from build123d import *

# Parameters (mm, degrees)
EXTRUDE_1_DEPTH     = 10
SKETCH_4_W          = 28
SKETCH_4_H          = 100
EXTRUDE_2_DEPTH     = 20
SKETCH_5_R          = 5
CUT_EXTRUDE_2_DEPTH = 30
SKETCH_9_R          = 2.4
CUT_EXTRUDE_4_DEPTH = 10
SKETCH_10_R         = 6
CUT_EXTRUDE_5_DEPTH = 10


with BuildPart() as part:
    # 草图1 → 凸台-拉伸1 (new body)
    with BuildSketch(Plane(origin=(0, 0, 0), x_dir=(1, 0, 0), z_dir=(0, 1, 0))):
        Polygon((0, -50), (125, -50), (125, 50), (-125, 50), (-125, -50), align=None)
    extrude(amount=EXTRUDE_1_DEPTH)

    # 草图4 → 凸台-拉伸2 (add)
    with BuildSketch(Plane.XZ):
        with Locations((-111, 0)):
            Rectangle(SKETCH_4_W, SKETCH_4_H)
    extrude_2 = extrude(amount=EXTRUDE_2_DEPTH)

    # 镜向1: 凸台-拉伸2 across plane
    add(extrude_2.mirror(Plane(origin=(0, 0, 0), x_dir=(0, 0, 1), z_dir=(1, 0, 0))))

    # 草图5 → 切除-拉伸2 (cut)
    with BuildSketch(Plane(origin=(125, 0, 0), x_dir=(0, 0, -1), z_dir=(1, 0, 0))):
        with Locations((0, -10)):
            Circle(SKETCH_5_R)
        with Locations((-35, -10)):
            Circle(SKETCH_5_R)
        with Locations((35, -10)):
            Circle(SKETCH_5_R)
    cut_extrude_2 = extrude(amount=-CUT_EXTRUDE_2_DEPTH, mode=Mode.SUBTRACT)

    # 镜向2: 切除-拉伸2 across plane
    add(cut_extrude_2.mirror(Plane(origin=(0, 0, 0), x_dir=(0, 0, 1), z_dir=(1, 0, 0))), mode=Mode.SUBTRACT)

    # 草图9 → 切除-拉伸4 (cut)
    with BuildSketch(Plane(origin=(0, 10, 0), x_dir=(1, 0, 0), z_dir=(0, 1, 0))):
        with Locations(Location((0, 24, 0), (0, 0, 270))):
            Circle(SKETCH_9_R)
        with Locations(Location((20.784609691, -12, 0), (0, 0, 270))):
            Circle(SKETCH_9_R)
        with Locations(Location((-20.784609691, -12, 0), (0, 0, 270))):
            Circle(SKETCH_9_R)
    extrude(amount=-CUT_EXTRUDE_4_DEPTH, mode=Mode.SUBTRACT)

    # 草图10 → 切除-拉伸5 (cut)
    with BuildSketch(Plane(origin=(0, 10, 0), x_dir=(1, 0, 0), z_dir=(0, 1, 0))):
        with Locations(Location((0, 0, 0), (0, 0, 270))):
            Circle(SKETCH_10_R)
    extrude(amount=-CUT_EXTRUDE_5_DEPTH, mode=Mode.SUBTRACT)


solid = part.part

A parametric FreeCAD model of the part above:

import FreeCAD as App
import Part
import Sketcher

doc = App.newDocument("Part")
body = doc.addObject("PartDesign::Body", "Body")

# Sketch on XZ plane
sketch1 = body.newObject("Sketcher::SketchObject", "Sketch")
sketch1.AttachmentSupport = (doc.getObject("XZ_Plane"), [""])
sketch1.MapMode = "FlatFace"
sketch1.addGeometry([
    Part.LineSegment(App.Vector(125, 50, 0), App.Vector(125, -50, 0)),
    Part.LineSegment(App.Vector(125, -50, 0), App.Vector(-125, -50, 0)),
    Part.LineSegment(App.Vector(-125, -50, 0), App.Vector(-125, 50, 0)),
    Part.LineSegment(App.Vector(-125, 50, 0), App.Vector(125, 50, 0)),
], False)
sketch1.addConstraint([
    Sketcher.Constraint("Coincident", 0, 2, 1, 1),
    Sketcher.Constraint("Coincident", 1, 2, 2, 1),
    Sketcher.Constraint("Coincident", 2, 2, 3, 1),
    Sketcher.Constraint("Coincident", 3, 2, 0, 1),
    Sketcher.Constraint("Vertical", 0),
    Sketcher.Constraint("Horizontal", 1),
    Sketcher.Constraint("Vertical", 2),
    Sketcher.Constraint("Horizontal", 3),
    Sketcher.Constraint("Symmetric", 0, 2, 2, 2, -1, 1),
    Sketcher.Constraint("DistanceX", 1, 2, 1, 1, 250.0),
    Sketcher.Constraint("DistanceY", 0, 2, 0, 1, 100.0),
])
pad1 = body.newObject("PartDesign::Pad", "Pad")
pad1.Profile = sketch1
pad1.Length = 10
pad1.Reversed = True

# Sketch on XZ plane
sketch2 = body.newObject("Sketcher::SketchObject", "Sketch001")
sketch2.AttachmentSupport = (doc.getObject("XZ_Plane"), [""])
sketch2.MapMode = "FlatFace"
sketch2.addGeometry([
    Part.LineSegment(App.Vector(-125, 50, 0), App.Vector(-125, -50, 0)),
    Part.LineSegment(App.Vector(-125, -50, 0), App.Vector(-97, -50, 0)),
    Part.LineSegment(App.Vector(-97, -50, 0), App.Vector(-97, 50, 0)),
    Part.LineSegment(App.Vector(-97, 50, 0), App.Vector(-125, 50, 0)),
], False)
sketch2.addConstraint([
    Sketcher.Constraint("Coincident", 0, 2, 1, 1),
    Sketcher.Constraint("Coincident", 1, 2, 2, 1),
    Sketcher.Constraint("Coincident", 2, 2, 3, 1),
    Sketcher.Constraint("Coincident", 3, 2, 0, 1),
    Sketcher.Constraint("Vertical", 0),
    Sketcher.Constraint("Horizontal", 1),
    Sketcher.Constraint("Vertical", 2),
    Sketcher.Constraint("Horizontal", 3),
    Sketcher.Constraint("DistanceX", 1, 1, 1, 2, 28.0),
    Sketcher.Constraint("DistanceY", 0, 2, 0, 1, 100.0),
    Sketcher.Constraint("DistanceX", 0, 2, -1, 1, 125.0),
    Sketcher.Constraint("DistanceY", 0, 2, -1, 1, 50.0),
])
pad2 = body.newObject("PartDesign::Pad", "Pad001")
pad2.Profile = sketch2
pad2.Length = 20
doc.recompute()

mirrored = body.newObject("PartDesign::Mirrored", "Mirrored")
mirrored.Originals = [pad2]
mirrored.MirrorPlane = (doc.getObject("YZ_Plane"), [""])
body.Tip = mirrored

# Sketch on YZ plane
sketch3 = body.newObject("Sketcher::SketchObject", "Sketch002")
sketch3.AttachmentSupport = (doc.getObject("YZ_Plane"), [""])
sketch3.MapMode = "FlatFace"
sketch3.AttachmentOffset = App.Placement(App.Vector(0, 0, 125), App.Rotation())
sketch3.addGeometry([
    Part.Circle(App.Vector(-10, 0, 0), App.Vector(0, 0, 1), 5),
    Part.Circle(App.Vector(-10, 35, 0), App.Vector(0, 0, 1), 5),
    Part.Circle(App.Vector(-10, -35, 0), App.Vector(0, 0, 1), 5),
], False)
sketch3.addConstraint([
    Sketcher.Constraint("Equal", 0, 1),
    Sketcher.Constraint("Equal", 1, 2),
    Sketcher.Constraint("Symmetric", 1, 3, 2, 3, -1),
    Sketcher.Constraint("PointOnObject", 0, 3, -1),
    Sketcher.Constraint("Vertical", 0, 3, 1, 3),
    Sketcher.Constraint("Diameter", 0, 10.0),
    Sketcher.Constraint("DistanceX", 0, 3, -1, 1, 10.0),
    Sketcher.Constraint("DistanceY", -1, 1, 1, 3, 35.0),
])
pocket1 = body.newObject("PartDesign::Pocket", "Pocket")
pocket1.Profile = sketch3
pocket1.Length = 30
doc.recompute()

mirrored2 = body.newObject("PartDesign::Mirrored", "Mirrored001")
mirrored2.Originals = [pocket1]
mirrored2.MirrorPlane = (doc.getObject("YZ_Plane"), [""])
body.Tip = mirrored2

# Sketch on XZ plane
sketch4 = body.newObject("Sketcher::SketchObject", "Sketch003")
sketch4.AttachmentSupport = (doc.getObject("XZ_Plane"), [""])
sketch4.MapMode = "FlatFace"
sketch4.AttachmentOffset = App.Placement(App.Vector(0, 0, -10), App.Rotation())
sketch4.addGeometry([
    Part.Circle(App.Vector(0, -24, 0), App.Vector(0, 0, 1), 2.4),
    Part.Circle(App.Vector(20.8, 12, 0), App.Vector(0, 0, 1), 2.4),
    Part.Circle(App.Vector(-20.8, 12, 0), App.Vector(0, 0, 1), 2.4),
], False)
sketch4.addConstraint([
    Sketcher.Constraint("Equal", 0, 1),
    Sketcher.Constraint("Equal", 1, 2),
    Sketcher.Constraint("Symmetric", 1, 3, 2, 3, -2),
    Sketcher.Constraint("PointOnObject", 0, 3, -2),
    Sketcher.Constraint("Diameter", 0, 4.8),
    Sketcher.Constraint("DistanceY", 0, 3, -1, 1, 24.0),
    Sketcher.Constraint("DistanceY", -1, 1, 1, 3, 12.0),
    Sketcher.Constraint("DistanceX", -1, 1, 1, 3, 20.78461),
])
pocket2 = body.newObject("PartDesign::Pocket", "Pocket001")
pocket2.Profile = sketch4
pocket2.Length = 10
pocket2.Reversed = True

# Sketch on XZ plane
sketch5 = body.newObject("Sketcher::SketchObject", "Sketch004")
sketch5.AttachmentSupport = (doc.getObject("XZ_Plane"), [""])
sketch5.MapMode = "FlatFace"
sketch5.AttachmentOffset = App.Placement(App.Vector(0, 0, -10), App.Rotation())
sketch5.addGeometry(Part.Circle(App.Vector(0, 0, 0), App.Vector(0, 0, 1), 6), False)
sketch5.addConstraint([
    Sketcher.Constraint("Coincident", 0, 3, -1, 1),
    Sketcher.Constraint("Diameter", 0, 12.0),
])
pocket3 = body.newObject("PartDesign::Pocket", "Pocket002")
pocket3.Profile = sketch5
pocket3.Length = 10
pocket3.Reversed = True

doc.recompute()
